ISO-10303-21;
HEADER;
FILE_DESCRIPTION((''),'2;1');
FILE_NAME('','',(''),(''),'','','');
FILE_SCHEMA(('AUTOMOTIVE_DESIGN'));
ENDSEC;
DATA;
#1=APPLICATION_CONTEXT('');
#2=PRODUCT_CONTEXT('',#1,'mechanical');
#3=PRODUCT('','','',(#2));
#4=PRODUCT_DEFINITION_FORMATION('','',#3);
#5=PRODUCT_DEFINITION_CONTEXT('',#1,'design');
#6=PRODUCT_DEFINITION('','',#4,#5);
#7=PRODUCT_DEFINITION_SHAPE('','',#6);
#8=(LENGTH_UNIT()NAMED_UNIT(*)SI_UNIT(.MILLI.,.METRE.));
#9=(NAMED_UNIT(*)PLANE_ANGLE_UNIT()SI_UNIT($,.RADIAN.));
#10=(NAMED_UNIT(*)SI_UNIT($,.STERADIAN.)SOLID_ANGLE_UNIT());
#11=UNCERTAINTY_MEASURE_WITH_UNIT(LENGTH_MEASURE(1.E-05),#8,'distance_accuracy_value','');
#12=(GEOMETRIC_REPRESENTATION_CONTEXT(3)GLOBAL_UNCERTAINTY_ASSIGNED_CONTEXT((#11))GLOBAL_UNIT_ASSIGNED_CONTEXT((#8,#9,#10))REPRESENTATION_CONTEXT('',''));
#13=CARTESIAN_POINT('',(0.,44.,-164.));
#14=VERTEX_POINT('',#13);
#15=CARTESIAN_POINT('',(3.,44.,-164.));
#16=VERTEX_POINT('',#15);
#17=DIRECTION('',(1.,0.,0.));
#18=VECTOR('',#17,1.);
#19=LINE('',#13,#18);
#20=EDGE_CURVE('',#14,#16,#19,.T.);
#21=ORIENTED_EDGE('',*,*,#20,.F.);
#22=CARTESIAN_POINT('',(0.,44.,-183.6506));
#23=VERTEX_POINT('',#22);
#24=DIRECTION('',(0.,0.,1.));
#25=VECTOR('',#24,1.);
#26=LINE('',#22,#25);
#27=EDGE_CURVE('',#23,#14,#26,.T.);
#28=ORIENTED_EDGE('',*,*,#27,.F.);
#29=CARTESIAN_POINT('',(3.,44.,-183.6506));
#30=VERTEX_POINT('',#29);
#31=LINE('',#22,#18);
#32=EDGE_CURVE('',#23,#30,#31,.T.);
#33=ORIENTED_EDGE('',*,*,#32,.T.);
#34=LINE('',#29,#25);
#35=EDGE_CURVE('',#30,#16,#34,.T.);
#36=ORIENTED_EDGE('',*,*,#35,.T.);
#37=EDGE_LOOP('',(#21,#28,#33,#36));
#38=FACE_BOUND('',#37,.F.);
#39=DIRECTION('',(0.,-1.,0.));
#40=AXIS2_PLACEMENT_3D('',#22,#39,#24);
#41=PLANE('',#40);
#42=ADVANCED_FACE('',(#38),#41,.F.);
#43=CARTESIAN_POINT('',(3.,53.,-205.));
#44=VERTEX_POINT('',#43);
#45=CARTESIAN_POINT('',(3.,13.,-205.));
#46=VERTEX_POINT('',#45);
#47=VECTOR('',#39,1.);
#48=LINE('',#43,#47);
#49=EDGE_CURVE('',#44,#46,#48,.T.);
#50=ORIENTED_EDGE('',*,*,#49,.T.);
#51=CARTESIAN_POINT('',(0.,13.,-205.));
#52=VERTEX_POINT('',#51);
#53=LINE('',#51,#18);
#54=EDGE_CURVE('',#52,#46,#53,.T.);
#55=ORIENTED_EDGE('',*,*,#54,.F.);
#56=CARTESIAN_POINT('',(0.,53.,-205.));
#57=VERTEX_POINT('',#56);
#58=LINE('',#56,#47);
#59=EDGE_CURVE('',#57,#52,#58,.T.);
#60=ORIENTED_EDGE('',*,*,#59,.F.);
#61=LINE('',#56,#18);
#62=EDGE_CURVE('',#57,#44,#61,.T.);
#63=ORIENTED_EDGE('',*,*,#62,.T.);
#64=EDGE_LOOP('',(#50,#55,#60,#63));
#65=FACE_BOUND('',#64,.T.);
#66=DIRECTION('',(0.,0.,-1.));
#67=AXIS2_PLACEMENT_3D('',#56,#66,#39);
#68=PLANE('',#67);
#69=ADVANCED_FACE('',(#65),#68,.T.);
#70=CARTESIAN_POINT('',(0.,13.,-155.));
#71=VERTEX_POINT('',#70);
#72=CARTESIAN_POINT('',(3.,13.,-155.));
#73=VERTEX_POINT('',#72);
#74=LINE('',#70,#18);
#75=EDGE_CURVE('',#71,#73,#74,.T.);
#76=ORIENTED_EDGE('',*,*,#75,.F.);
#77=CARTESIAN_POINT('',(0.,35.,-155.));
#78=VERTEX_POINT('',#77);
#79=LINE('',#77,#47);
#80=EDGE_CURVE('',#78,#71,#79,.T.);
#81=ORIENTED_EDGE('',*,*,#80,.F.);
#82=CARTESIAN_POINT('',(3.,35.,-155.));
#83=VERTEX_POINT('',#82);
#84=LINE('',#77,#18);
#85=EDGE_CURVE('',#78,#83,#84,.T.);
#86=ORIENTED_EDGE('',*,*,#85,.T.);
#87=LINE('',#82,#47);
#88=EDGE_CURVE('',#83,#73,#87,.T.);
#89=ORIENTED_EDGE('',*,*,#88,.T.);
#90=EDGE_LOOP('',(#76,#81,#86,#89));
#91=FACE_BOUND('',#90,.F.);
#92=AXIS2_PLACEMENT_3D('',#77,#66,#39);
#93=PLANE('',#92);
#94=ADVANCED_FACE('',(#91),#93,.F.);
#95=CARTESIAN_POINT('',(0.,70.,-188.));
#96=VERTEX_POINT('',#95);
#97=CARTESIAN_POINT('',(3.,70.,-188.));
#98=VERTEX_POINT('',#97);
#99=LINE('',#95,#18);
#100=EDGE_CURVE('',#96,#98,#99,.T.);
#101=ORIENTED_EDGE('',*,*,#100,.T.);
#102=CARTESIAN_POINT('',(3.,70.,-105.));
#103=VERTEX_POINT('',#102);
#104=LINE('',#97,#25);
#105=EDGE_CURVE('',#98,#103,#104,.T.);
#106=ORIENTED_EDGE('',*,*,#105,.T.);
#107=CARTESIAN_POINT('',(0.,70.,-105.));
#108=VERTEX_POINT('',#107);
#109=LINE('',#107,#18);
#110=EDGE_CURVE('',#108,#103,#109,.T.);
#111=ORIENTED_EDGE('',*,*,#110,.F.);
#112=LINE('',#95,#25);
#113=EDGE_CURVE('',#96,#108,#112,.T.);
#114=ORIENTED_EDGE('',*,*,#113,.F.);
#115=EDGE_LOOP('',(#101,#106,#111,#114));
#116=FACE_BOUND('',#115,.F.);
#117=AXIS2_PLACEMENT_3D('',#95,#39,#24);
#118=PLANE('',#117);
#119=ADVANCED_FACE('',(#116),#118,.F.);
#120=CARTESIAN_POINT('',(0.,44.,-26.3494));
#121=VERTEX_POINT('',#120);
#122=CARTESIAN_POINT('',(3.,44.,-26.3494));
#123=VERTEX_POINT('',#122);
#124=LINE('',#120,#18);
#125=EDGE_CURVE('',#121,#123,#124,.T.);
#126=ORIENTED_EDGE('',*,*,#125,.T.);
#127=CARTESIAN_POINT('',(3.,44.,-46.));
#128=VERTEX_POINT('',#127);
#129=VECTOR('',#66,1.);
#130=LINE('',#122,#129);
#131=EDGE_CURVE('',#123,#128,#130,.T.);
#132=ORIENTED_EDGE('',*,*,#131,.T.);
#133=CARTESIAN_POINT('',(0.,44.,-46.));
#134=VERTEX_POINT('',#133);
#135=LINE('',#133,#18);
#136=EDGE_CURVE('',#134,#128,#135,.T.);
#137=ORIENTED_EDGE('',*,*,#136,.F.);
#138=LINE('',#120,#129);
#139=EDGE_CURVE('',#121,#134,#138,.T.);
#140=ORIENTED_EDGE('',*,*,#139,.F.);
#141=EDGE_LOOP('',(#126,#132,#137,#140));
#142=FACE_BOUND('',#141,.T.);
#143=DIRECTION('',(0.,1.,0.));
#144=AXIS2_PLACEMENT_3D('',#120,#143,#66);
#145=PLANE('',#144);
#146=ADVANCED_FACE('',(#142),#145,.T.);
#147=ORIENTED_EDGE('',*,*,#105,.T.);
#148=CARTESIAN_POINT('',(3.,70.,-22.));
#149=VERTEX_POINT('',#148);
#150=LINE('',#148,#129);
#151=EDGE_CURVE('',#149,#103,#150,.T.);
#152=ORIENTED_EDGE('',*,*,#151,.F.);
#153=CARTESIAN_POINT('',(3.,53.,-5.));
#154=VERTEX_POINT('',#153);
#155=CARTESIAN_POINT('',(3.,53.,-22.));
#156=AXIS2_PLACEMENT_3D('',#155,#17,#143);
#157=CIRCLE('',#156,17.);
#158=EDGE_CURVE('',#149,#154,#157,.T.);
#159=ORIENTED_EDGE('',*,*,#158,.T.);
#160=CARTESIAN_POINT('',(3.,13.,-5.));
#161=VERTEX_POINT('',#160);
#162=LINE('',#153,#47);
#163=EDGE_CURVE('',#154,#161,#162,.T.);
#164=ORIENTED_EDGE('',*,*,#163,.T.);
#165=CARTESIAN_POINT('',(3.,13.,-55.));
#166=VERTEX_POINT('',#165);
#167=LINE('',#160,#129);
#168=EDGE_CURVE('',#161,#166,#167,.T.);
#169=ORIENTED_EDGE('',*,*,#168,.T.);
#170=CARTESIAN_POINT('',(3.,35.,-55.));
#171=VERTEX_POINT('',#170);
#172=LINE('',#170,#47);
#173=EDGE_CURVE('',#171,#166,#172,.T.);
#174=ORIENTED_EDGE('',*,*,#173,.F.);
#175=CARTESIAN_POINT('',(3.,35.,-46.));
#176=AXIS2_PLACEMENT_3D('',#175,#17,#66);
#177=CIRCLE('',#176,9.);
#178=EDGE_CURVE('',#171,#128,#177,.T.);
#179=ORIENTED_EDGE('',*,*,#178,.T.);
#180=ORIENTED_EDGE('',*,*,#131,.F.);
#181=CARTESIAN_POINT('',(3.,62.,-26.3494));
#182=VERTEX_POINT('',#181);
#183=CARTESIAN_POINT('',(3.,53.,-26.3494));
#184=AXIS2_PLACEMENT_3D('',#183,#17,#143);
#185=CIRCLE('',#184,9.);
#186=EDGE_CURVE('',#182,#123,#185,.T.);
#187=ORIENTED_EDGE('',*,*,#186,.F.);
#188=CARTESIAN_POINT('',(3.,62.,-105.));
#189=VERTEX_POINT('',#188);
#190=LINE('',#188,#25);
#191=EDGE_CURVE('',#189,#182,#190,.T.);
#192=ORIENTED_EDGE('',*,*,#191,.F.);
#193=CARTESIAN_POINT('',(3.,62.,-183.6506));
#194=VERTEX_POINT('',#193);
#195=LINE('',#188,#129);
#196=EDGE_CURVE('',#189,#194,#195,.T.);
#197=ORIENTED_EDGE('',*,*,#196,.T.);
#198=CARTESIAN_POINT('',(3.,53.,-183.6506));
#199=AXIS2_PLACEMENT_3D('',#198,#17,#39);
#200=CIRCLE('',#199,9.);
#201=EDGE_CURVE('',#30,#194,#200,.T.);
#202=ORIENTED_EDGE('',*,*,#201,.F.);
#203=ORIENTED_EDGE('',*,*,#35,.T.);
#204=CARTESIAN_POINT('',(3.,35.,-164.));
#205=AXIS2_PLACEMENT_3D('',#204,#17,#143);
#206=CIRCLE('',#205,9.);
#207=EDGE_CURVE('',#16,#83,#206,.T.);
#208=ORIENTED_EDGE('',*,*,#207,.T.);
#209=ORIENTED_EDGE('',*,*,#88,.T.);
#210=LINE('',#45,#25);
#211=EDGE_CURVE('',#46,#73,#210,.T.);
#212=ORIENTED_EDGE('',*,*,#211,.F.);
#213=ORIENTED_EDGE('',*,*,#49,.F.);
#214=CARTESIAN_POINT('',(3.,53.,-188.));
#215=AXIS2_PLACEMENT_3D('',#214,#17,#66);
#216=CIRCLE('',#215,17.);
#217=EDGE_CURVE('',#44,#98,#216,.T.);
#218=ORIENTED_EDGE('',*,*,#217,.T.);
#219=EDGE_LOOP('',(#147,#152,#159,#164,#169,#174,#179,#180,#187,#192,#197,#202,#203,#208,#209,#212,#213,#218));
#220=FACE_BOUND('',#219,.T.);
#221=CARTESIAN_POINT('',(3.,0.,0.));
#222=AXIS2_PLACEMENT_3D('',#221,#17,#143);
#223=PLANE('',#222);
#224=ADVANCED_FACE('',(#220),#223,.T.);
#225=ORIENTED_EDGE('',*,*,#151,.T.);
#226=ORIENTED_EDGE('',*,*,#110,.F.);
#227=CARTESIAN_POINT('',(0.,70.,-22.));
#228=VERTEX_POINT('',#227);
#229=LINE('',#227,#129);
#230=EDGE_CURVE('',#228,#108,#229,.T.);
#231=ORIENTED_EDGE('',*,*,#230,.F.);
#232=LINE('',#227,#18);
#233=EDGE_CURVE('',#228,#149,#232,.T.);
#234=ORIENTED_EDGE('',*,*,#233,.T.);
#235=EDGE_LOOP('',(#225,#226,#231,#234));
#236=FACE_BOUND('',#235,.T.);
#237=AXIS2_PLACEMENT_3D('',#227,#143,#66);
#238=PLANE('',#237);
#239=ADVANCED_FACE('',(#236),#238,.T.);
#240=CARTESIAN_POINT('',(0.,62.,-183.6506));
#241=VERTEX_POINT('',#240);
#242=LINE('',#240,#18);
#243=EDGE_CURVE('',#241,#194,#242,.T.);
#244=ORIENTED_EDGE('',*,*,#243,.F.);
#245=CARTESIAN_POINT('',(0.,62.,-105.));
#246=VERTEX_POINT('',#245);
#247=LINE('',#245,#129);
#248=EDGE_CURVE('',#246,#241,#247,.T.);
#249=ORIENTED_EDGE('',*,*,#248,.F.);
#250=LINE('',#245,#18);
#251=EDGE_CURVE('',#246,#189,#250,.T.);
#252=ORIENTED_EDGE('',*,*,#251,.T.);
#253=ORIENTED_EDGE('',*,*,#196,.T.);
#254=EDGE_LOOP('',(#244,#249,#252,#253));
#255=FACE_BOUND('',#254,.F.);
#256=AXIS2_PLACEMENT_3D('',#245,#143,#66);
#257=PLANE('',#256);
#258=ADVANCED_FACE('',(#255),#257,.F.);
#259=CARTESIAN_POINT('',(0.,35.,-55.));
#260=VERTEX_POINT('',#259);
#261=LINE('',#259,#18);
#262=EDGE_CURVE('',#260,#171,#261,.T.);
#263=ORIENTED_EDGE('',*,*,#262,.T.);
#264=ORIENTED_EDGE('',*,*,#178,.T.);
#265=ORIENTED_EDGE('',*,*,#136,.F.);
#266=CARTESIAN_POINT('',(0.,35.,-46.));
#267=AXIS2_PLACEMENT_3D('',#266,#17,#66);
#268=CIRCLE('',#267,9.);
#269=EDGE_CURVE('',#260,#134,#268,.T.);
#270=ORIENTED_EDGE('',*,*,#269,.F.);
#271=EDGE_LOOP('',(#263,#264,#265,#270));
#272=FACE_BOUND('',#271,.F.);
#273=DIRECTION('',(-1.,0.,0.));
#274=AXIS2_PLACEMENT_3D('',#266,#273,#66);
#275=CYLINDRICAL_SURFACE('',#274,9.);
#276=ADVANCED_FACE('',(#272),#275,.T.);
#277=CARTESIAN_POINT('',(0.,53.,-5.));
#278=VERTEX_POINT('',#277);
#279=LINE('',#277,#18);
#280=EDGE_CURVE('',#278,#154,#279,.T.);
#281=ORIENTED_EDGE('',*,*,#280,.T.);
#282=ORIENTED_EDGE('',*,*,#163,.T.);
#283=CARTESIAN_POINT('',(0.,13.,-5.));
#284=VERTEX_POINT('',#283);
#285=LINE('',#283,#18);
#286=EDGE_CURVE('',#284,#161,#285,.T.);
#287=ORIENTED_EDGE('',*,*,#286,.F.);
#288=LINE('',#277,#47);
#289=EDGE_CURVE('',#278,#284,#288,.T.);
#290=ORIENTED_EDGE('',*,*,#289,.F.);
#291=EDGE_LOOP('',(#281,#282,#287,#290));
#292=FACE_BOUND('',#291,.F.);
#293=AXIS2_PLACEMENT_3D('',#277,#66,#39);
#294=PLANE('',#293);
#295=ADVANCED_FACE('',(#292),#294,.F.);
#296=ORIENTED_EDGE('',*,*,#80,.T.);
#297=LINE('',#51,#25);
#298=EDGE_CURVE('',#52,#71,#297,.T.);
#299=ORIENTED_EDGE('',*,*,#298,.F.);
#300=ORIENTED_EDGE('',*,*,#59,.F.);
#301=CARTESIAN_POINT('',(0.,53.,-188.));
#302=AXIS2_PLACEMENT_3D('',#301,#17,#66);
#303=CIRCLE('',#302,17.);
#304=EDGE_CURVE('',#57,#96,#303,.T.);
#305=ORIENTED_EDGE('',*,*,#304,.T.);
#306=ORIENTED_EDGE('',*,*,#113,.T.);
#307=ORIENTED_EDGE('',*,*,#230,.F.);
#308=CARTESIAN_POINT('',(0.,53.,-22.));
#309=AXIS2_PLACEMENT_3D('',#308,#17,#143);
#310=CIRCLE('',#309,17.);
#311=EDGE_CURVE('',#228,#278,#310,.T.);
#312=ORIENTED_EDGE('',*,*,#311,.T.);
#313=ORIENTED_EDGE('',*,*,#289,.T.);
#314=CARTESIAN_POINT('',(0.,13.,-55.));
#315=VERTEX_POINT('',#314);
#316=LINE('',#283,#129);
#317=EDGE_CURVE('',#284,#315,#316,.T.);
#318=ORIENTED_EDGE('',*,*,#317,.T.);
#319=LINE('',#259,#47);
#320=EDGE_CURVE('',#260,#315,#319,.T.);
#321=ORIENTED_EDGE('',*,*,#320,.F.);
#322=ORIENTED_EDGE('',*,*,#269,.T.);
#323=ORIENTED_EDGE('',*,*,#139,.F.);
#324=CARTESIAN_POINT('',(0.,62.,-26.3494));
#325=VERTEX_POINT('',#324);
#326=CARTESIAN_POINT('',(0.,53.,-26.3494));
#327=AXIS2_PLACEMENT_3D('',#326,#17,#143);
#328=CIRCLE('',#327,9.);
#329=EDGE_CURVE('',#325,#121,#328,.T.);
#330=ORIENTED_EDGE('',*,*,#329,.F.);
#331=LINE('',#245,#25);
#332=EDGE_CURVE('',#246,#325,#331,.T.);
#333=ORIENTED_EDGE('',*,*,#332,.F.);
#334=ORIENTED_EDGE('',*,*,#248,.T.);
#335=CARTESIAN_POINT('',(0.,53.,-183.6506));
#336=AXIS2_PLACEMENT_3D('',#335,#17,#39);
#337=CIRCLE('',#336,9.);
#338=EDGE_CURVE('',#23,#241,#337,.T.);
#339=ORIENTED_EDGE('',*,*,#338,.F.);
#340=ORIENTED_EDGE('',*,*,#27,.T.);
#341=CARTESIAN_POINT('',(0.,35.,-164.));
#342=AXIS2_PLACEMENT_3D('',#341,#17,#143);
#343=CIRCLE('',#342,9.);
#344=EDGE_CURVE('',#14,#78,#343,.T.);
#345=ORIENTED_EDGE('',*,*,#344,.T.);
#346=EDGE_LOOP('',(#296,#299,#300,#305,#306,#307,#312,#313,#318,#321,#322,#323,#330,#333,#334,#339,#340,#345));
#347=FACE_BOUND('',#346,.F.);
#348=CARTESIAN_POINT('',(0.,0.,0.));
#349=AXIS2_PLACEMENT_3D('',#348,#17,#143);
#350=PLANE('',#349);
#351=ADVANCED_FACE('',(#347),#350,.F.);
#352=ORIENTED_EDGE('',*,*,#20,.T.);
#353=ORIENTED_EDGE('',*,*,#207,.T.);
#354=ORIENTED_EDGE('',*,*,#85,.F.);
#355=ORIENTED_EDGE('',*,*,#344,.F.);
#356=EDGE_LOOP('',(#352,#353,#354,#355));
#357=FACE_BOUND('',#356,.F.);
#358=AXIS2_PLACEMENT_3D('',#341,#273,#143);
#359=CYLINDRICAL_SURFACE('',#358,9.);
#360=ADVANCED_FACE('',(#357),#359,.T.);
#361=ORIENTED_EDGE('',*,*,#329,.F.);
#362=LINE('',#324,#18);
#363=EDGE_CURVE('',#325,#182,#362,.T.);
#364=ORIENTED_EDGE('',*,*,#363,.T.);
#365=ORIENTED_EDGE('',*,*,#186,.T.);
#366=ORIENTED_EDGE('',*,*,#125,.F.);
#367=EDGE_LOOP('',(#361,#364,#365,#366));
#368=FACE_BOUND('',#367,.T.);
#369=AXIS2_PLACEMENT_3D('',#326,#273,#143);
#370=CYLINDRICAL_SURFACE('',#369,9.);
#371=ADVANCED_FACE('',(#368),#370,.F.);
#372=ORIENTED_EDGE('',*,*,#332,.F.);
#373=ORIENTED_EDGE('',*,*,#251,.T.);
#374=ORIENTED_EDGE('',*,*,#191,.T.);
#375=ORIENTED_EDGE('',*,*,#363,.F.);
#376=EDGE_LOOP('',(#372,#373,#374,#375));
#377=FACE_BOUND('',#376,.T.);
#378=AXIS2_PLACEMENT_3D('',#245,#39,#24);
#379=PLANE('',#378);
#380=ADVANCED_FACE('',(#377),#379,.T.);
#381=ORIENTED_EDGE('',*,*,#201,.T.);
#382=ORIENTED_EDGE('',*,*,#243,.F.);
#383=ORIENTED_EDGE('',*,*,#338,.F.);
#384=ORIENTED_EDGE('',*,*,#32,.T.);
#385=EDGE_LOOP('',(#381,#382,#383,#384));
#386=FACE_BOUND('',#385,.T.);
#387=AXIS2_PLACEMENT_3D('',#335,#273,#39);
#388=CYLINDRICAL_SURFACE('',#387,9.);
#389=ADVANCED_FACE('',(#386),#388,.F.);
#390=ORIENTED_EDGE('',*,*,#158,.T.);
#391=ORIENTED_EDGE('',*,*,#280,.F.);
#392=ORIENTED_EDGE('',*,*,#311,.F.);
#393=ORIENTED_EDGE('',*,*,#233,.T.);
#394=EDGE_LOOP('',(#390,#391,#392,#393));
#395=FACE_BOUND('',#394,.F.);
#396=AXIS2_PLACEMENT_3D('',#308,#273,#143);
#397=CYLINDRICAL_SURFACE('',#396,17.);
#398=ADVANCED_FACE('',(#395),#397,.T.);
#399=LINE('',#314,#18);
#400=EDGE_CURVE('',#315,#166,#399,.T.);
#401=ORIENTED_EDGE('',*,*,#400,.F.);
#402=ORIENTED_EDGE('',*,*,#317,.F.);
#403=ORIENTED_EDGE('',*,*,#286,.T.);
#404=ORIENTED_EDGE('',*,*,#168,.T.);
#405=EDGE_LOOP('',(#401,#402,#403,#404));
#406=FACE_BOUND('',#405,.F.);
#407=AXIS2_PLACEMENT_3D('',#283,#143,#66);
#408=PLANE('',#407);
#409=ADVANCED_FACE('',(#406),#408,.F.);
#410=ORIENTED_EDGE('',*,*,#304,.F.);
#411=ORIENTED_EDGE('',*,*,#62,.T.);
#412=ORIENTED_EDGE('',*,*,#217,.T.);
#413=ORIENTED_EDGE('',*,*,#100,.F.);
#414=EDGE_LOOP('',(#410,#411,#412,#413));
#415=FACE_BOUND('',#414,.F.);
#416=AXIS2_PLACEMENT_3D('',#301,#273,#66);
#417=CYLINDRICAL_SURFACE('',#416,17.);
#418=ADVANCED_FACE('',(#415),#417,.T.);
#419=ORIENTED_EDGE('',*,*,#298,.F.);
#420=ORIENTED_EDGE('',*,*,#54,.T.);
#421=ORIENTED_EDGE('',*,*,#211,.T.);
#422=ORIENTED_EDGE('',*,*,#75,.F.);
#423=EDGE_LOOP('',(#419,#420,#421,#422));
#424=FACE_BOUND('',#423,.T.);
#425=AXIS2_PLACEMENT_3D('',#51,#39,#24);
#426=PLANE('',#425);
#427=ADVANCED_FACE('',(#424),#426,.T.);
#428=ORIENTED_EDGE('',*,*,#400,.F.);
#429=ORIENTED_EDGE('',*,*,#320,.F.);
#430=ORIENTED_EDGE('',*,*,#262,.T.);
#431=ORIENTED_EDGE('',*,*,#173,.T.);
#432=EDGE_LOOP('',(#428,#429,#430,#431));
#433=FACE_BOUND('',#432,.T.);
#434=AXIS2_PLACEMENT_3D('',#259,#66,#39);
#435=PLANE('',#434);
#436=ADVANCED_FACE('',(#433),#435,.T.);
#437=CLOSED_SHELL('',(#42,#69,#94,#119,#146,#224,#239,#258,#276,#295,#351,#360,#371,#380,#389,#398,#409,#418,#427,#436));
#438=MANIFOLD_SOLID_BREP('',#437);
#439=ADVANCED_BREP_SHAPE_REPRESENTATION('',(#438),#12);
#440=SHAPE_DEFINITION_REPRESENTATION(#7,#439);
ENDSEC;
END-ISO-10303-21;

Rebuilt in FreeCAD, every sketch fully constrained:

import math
import FreeCAD as App
import Part
import Sketcher
from FreeCAD import Vector

doc = App.newDocument("Part")
body = doc.addObject("PartDesign::Body", "Body")

# Sketch on YZ plane
sketch1 = body.newObject("Sketcher::SketchObject", "Sketch")
sketch1.AttachmentSupport = (doc.getObject("YZ_Plane"), [""])
sketch1.MapMode = "FlatFace"
sketch1.addGeometry(Part.LineSegment(Vector(44, -46, 0), Vector(44, -26.3494, 0)), False)
sketch1.addGeometry(Part.ArcOfCircle(Part.Circle(Vector(53, -26.3494, 0), Vector(0, 0, 1), 9), math.radians(0), math.radians(180)), False)
sketch1.addGeometry(Part.LineSegment(Vector(62, -26.3494, 0), Vector(62, -183.6506, 0)), False)
sketch1.addGeometry(Part.ArcOfCircle(Part.Circle(Vector(53, -183.6506, 0), Vector(0, 0, 1), 9), math.radians(180), math.radians(360)), False)
sketch1.addGeometry(Part.LineSegment(Vector(44, -183.6506, 0), Vector(44, -164, 0)), False)
sketch1.addGeometry(Part.ArcOfCircle(Part.Circle(Vector(35, -164, 0), Vector(0, 0, 1), 9), math.radians(0), math.radians(90)), False)
sketch1.addGeometry(Part.LineSegment(Vector(35, -155, 0), Vector(13, -155, 0)), False)
sketch1.addGeometry(Part.LineSegment(Vector(13, -155, 0), Vector(13, -205, 0)), False)
sketch1.addGeometry(Part.LineSegment(Vector(13, -205, 0), Vector(53, -205, 0)), False)
sketch1.addGeometry(Part.ArcOfCircle(Part.Circle(Vector(53, -188, 0), Vector(0, 0, 1), 17), math.radians(-90), math.radians(0)), False)
sketch1.addGeometry(Part.LineSegment(Vector(70, -188, 0), Vector(70, -22, 0)), False)
sketch1.addGeometry(Part.ArcOfCircle(Part.Circle(Vector(53, -22, 0), Vector(0, 0, 1), 17), math.radians(0), math.radians(90)), False)
sketch1.addGeometry(Part.LineSegment(Vector(53, -5, 0), Vector(13, -5, 0)), False)
sketch1.addGeometry(Part.LineSegment(Vector(13, -5, 0), Vector(13, -55, 0)), False)
sketch1.addGeometry(Part.LineSegment(Vector(13, -55, 0), Vector(35, -55, 0)), False)
sketch1.addGeometry(Part.ArcOfCircle(Part.Circle(Vector(35, -46, 0), Vector(0, 0, 1), 9), math.radians(-90), math.radians(0)), False)
sketch1.addConstraint(Sketcher.Constraint("Tangent", 0, 2, 1, 2))
sketch1.addConstraint(Sketcher.Constraint("Tangent", 1, 1, 2, 1))
sketch1.addConstraint(Sketcher.Constraint("Tangent", 2, 2, 3, 2))
sketch1.addConstraint(Sketcher.Constraint("Tangent", 3, 1, 4, 1))
sketch1.addConstraint(Sketcher.Constraint("Tangent", 4, 2, 5, 1))
sketch1.addConstraint(Sketcher.Constraint("Tangent", 5, 2, 6, 1))
sketch1.addConstraint(Sketcher.Constraint("Coincident", 6, 2, 7, 1))
sketch1.addConstraint(Sketcher.Constraint("Coincident", 7, 2, 8, 1))
sketch1.addConstraint(Sketcher.Constraint("Tangent", 8, 2, 9, 1))
sketch1.addConstraint(Sketcher.Constraint("Tangent", 9, 2, 10, 1))
sketch1.addConstraint(Sketcher.Constraint("Tangent", 10, 2, 11, 1))
sketch1.addConstraint(Sketcher.Constraint("Tangent", 11, 2, 12, 1))
sketch1.addConstraint(Sketcher.Constraint("Coincident", 12, 2, 13, 1))
sketch1.addConstraint(Sketcher.Constraint("Coincident", 13, 2, 14, 1))
sketch1.addConstraint(Sketcher.Constraint("Tangent", 14, 2, 15, 1))
sketch1.addConstraint(Sketcher.Constraint("Tangent", 15, 2, 0, 1))
sketch1.addConstraint(Sketcher.Constraint("Vertical", 0))
sketch1.addConstraint(Sketcher.Constraint("Vertical", 2))
sketch1.addConstraint(Sketcher.Constraint("Vertical", 4))
sketch1.addConstraint(Sketcher.Constraint("Horizontal", 6))
sketch1.addConstraint(Sketcher.Constraint("Vertical", 7))
sketch1.addConstraint(Sketcher.Constraint("Horizontal", 8))
sketch1.addConstraint(Sketcher.Constraint("Vertical", 10))
sketch1.addConstraint(Sketcher.Constraint("Horizontal", 12))
sketch1.addConstraint(Sketcher.Constraint("Vertical", 13))
sketch1.addConstraint(Sketcher.Constraint("Horizontal", 14))
sketch1.addConstraint(Sketcher.Constraint("Equal", 1, 3))
sketch1.addConstraint(Sketcher.Constraint("Equal", 3, 5))
sketch1.addConstraint(Sketcher.Constraint("Equal", 9, 11))
sketch1.addConstraint(Sketcher.Constraint("Equal", 5, 15))
sketch1.addConstraint(Sketcher.Constraint("Vertical", 3, 3, 9, 3))
sketch1.addConstraint(Sketcher.Constraint("Vertical", 7, 2, 12, 2))
sketch1.addConstraint(Sketcher.Constraint("Equal", 0, 4))
sketch1.addConstraint(Sketcher.Constraint("Equal", 7, 13))
sketch1.addConstraint(Sketcher.Constraint("Radius", 1, 9.0))
sketch1.addConstraint(Sketcher.Constraint("DistanceY", 7, 2, 7, 1, 50.0))
sketch1.addConstraint(Sketcher.Constraint("DistanceY", 11, 2, -1, 1, 5.0))
sketch1.addConstraint(Sketcher.Constraint("Radius", 9, 17.0))
sketch1.addConstraint(Sketcher.Constraint("DistanceX", 6, 2, 6, 1, 22.0))
sketch1.addConstraint(Sketcher.Constraint("DistanceY", 10, 1, 10, 2, 166.0))
sketch1.addConstraint(Sketcher.Constraint("DistanceX", -1, 1, 1, 3, 53.0))
sketch1.addConstraint(Sketcher.Constraint("DistanceY", 0, 1, 0, 2, 19.6506))
pad1 = body.newObject("PartDesign::Pad", "Pad")
pad1.Profile = sketch1
pad1.Length = 3

doc.recompute()
